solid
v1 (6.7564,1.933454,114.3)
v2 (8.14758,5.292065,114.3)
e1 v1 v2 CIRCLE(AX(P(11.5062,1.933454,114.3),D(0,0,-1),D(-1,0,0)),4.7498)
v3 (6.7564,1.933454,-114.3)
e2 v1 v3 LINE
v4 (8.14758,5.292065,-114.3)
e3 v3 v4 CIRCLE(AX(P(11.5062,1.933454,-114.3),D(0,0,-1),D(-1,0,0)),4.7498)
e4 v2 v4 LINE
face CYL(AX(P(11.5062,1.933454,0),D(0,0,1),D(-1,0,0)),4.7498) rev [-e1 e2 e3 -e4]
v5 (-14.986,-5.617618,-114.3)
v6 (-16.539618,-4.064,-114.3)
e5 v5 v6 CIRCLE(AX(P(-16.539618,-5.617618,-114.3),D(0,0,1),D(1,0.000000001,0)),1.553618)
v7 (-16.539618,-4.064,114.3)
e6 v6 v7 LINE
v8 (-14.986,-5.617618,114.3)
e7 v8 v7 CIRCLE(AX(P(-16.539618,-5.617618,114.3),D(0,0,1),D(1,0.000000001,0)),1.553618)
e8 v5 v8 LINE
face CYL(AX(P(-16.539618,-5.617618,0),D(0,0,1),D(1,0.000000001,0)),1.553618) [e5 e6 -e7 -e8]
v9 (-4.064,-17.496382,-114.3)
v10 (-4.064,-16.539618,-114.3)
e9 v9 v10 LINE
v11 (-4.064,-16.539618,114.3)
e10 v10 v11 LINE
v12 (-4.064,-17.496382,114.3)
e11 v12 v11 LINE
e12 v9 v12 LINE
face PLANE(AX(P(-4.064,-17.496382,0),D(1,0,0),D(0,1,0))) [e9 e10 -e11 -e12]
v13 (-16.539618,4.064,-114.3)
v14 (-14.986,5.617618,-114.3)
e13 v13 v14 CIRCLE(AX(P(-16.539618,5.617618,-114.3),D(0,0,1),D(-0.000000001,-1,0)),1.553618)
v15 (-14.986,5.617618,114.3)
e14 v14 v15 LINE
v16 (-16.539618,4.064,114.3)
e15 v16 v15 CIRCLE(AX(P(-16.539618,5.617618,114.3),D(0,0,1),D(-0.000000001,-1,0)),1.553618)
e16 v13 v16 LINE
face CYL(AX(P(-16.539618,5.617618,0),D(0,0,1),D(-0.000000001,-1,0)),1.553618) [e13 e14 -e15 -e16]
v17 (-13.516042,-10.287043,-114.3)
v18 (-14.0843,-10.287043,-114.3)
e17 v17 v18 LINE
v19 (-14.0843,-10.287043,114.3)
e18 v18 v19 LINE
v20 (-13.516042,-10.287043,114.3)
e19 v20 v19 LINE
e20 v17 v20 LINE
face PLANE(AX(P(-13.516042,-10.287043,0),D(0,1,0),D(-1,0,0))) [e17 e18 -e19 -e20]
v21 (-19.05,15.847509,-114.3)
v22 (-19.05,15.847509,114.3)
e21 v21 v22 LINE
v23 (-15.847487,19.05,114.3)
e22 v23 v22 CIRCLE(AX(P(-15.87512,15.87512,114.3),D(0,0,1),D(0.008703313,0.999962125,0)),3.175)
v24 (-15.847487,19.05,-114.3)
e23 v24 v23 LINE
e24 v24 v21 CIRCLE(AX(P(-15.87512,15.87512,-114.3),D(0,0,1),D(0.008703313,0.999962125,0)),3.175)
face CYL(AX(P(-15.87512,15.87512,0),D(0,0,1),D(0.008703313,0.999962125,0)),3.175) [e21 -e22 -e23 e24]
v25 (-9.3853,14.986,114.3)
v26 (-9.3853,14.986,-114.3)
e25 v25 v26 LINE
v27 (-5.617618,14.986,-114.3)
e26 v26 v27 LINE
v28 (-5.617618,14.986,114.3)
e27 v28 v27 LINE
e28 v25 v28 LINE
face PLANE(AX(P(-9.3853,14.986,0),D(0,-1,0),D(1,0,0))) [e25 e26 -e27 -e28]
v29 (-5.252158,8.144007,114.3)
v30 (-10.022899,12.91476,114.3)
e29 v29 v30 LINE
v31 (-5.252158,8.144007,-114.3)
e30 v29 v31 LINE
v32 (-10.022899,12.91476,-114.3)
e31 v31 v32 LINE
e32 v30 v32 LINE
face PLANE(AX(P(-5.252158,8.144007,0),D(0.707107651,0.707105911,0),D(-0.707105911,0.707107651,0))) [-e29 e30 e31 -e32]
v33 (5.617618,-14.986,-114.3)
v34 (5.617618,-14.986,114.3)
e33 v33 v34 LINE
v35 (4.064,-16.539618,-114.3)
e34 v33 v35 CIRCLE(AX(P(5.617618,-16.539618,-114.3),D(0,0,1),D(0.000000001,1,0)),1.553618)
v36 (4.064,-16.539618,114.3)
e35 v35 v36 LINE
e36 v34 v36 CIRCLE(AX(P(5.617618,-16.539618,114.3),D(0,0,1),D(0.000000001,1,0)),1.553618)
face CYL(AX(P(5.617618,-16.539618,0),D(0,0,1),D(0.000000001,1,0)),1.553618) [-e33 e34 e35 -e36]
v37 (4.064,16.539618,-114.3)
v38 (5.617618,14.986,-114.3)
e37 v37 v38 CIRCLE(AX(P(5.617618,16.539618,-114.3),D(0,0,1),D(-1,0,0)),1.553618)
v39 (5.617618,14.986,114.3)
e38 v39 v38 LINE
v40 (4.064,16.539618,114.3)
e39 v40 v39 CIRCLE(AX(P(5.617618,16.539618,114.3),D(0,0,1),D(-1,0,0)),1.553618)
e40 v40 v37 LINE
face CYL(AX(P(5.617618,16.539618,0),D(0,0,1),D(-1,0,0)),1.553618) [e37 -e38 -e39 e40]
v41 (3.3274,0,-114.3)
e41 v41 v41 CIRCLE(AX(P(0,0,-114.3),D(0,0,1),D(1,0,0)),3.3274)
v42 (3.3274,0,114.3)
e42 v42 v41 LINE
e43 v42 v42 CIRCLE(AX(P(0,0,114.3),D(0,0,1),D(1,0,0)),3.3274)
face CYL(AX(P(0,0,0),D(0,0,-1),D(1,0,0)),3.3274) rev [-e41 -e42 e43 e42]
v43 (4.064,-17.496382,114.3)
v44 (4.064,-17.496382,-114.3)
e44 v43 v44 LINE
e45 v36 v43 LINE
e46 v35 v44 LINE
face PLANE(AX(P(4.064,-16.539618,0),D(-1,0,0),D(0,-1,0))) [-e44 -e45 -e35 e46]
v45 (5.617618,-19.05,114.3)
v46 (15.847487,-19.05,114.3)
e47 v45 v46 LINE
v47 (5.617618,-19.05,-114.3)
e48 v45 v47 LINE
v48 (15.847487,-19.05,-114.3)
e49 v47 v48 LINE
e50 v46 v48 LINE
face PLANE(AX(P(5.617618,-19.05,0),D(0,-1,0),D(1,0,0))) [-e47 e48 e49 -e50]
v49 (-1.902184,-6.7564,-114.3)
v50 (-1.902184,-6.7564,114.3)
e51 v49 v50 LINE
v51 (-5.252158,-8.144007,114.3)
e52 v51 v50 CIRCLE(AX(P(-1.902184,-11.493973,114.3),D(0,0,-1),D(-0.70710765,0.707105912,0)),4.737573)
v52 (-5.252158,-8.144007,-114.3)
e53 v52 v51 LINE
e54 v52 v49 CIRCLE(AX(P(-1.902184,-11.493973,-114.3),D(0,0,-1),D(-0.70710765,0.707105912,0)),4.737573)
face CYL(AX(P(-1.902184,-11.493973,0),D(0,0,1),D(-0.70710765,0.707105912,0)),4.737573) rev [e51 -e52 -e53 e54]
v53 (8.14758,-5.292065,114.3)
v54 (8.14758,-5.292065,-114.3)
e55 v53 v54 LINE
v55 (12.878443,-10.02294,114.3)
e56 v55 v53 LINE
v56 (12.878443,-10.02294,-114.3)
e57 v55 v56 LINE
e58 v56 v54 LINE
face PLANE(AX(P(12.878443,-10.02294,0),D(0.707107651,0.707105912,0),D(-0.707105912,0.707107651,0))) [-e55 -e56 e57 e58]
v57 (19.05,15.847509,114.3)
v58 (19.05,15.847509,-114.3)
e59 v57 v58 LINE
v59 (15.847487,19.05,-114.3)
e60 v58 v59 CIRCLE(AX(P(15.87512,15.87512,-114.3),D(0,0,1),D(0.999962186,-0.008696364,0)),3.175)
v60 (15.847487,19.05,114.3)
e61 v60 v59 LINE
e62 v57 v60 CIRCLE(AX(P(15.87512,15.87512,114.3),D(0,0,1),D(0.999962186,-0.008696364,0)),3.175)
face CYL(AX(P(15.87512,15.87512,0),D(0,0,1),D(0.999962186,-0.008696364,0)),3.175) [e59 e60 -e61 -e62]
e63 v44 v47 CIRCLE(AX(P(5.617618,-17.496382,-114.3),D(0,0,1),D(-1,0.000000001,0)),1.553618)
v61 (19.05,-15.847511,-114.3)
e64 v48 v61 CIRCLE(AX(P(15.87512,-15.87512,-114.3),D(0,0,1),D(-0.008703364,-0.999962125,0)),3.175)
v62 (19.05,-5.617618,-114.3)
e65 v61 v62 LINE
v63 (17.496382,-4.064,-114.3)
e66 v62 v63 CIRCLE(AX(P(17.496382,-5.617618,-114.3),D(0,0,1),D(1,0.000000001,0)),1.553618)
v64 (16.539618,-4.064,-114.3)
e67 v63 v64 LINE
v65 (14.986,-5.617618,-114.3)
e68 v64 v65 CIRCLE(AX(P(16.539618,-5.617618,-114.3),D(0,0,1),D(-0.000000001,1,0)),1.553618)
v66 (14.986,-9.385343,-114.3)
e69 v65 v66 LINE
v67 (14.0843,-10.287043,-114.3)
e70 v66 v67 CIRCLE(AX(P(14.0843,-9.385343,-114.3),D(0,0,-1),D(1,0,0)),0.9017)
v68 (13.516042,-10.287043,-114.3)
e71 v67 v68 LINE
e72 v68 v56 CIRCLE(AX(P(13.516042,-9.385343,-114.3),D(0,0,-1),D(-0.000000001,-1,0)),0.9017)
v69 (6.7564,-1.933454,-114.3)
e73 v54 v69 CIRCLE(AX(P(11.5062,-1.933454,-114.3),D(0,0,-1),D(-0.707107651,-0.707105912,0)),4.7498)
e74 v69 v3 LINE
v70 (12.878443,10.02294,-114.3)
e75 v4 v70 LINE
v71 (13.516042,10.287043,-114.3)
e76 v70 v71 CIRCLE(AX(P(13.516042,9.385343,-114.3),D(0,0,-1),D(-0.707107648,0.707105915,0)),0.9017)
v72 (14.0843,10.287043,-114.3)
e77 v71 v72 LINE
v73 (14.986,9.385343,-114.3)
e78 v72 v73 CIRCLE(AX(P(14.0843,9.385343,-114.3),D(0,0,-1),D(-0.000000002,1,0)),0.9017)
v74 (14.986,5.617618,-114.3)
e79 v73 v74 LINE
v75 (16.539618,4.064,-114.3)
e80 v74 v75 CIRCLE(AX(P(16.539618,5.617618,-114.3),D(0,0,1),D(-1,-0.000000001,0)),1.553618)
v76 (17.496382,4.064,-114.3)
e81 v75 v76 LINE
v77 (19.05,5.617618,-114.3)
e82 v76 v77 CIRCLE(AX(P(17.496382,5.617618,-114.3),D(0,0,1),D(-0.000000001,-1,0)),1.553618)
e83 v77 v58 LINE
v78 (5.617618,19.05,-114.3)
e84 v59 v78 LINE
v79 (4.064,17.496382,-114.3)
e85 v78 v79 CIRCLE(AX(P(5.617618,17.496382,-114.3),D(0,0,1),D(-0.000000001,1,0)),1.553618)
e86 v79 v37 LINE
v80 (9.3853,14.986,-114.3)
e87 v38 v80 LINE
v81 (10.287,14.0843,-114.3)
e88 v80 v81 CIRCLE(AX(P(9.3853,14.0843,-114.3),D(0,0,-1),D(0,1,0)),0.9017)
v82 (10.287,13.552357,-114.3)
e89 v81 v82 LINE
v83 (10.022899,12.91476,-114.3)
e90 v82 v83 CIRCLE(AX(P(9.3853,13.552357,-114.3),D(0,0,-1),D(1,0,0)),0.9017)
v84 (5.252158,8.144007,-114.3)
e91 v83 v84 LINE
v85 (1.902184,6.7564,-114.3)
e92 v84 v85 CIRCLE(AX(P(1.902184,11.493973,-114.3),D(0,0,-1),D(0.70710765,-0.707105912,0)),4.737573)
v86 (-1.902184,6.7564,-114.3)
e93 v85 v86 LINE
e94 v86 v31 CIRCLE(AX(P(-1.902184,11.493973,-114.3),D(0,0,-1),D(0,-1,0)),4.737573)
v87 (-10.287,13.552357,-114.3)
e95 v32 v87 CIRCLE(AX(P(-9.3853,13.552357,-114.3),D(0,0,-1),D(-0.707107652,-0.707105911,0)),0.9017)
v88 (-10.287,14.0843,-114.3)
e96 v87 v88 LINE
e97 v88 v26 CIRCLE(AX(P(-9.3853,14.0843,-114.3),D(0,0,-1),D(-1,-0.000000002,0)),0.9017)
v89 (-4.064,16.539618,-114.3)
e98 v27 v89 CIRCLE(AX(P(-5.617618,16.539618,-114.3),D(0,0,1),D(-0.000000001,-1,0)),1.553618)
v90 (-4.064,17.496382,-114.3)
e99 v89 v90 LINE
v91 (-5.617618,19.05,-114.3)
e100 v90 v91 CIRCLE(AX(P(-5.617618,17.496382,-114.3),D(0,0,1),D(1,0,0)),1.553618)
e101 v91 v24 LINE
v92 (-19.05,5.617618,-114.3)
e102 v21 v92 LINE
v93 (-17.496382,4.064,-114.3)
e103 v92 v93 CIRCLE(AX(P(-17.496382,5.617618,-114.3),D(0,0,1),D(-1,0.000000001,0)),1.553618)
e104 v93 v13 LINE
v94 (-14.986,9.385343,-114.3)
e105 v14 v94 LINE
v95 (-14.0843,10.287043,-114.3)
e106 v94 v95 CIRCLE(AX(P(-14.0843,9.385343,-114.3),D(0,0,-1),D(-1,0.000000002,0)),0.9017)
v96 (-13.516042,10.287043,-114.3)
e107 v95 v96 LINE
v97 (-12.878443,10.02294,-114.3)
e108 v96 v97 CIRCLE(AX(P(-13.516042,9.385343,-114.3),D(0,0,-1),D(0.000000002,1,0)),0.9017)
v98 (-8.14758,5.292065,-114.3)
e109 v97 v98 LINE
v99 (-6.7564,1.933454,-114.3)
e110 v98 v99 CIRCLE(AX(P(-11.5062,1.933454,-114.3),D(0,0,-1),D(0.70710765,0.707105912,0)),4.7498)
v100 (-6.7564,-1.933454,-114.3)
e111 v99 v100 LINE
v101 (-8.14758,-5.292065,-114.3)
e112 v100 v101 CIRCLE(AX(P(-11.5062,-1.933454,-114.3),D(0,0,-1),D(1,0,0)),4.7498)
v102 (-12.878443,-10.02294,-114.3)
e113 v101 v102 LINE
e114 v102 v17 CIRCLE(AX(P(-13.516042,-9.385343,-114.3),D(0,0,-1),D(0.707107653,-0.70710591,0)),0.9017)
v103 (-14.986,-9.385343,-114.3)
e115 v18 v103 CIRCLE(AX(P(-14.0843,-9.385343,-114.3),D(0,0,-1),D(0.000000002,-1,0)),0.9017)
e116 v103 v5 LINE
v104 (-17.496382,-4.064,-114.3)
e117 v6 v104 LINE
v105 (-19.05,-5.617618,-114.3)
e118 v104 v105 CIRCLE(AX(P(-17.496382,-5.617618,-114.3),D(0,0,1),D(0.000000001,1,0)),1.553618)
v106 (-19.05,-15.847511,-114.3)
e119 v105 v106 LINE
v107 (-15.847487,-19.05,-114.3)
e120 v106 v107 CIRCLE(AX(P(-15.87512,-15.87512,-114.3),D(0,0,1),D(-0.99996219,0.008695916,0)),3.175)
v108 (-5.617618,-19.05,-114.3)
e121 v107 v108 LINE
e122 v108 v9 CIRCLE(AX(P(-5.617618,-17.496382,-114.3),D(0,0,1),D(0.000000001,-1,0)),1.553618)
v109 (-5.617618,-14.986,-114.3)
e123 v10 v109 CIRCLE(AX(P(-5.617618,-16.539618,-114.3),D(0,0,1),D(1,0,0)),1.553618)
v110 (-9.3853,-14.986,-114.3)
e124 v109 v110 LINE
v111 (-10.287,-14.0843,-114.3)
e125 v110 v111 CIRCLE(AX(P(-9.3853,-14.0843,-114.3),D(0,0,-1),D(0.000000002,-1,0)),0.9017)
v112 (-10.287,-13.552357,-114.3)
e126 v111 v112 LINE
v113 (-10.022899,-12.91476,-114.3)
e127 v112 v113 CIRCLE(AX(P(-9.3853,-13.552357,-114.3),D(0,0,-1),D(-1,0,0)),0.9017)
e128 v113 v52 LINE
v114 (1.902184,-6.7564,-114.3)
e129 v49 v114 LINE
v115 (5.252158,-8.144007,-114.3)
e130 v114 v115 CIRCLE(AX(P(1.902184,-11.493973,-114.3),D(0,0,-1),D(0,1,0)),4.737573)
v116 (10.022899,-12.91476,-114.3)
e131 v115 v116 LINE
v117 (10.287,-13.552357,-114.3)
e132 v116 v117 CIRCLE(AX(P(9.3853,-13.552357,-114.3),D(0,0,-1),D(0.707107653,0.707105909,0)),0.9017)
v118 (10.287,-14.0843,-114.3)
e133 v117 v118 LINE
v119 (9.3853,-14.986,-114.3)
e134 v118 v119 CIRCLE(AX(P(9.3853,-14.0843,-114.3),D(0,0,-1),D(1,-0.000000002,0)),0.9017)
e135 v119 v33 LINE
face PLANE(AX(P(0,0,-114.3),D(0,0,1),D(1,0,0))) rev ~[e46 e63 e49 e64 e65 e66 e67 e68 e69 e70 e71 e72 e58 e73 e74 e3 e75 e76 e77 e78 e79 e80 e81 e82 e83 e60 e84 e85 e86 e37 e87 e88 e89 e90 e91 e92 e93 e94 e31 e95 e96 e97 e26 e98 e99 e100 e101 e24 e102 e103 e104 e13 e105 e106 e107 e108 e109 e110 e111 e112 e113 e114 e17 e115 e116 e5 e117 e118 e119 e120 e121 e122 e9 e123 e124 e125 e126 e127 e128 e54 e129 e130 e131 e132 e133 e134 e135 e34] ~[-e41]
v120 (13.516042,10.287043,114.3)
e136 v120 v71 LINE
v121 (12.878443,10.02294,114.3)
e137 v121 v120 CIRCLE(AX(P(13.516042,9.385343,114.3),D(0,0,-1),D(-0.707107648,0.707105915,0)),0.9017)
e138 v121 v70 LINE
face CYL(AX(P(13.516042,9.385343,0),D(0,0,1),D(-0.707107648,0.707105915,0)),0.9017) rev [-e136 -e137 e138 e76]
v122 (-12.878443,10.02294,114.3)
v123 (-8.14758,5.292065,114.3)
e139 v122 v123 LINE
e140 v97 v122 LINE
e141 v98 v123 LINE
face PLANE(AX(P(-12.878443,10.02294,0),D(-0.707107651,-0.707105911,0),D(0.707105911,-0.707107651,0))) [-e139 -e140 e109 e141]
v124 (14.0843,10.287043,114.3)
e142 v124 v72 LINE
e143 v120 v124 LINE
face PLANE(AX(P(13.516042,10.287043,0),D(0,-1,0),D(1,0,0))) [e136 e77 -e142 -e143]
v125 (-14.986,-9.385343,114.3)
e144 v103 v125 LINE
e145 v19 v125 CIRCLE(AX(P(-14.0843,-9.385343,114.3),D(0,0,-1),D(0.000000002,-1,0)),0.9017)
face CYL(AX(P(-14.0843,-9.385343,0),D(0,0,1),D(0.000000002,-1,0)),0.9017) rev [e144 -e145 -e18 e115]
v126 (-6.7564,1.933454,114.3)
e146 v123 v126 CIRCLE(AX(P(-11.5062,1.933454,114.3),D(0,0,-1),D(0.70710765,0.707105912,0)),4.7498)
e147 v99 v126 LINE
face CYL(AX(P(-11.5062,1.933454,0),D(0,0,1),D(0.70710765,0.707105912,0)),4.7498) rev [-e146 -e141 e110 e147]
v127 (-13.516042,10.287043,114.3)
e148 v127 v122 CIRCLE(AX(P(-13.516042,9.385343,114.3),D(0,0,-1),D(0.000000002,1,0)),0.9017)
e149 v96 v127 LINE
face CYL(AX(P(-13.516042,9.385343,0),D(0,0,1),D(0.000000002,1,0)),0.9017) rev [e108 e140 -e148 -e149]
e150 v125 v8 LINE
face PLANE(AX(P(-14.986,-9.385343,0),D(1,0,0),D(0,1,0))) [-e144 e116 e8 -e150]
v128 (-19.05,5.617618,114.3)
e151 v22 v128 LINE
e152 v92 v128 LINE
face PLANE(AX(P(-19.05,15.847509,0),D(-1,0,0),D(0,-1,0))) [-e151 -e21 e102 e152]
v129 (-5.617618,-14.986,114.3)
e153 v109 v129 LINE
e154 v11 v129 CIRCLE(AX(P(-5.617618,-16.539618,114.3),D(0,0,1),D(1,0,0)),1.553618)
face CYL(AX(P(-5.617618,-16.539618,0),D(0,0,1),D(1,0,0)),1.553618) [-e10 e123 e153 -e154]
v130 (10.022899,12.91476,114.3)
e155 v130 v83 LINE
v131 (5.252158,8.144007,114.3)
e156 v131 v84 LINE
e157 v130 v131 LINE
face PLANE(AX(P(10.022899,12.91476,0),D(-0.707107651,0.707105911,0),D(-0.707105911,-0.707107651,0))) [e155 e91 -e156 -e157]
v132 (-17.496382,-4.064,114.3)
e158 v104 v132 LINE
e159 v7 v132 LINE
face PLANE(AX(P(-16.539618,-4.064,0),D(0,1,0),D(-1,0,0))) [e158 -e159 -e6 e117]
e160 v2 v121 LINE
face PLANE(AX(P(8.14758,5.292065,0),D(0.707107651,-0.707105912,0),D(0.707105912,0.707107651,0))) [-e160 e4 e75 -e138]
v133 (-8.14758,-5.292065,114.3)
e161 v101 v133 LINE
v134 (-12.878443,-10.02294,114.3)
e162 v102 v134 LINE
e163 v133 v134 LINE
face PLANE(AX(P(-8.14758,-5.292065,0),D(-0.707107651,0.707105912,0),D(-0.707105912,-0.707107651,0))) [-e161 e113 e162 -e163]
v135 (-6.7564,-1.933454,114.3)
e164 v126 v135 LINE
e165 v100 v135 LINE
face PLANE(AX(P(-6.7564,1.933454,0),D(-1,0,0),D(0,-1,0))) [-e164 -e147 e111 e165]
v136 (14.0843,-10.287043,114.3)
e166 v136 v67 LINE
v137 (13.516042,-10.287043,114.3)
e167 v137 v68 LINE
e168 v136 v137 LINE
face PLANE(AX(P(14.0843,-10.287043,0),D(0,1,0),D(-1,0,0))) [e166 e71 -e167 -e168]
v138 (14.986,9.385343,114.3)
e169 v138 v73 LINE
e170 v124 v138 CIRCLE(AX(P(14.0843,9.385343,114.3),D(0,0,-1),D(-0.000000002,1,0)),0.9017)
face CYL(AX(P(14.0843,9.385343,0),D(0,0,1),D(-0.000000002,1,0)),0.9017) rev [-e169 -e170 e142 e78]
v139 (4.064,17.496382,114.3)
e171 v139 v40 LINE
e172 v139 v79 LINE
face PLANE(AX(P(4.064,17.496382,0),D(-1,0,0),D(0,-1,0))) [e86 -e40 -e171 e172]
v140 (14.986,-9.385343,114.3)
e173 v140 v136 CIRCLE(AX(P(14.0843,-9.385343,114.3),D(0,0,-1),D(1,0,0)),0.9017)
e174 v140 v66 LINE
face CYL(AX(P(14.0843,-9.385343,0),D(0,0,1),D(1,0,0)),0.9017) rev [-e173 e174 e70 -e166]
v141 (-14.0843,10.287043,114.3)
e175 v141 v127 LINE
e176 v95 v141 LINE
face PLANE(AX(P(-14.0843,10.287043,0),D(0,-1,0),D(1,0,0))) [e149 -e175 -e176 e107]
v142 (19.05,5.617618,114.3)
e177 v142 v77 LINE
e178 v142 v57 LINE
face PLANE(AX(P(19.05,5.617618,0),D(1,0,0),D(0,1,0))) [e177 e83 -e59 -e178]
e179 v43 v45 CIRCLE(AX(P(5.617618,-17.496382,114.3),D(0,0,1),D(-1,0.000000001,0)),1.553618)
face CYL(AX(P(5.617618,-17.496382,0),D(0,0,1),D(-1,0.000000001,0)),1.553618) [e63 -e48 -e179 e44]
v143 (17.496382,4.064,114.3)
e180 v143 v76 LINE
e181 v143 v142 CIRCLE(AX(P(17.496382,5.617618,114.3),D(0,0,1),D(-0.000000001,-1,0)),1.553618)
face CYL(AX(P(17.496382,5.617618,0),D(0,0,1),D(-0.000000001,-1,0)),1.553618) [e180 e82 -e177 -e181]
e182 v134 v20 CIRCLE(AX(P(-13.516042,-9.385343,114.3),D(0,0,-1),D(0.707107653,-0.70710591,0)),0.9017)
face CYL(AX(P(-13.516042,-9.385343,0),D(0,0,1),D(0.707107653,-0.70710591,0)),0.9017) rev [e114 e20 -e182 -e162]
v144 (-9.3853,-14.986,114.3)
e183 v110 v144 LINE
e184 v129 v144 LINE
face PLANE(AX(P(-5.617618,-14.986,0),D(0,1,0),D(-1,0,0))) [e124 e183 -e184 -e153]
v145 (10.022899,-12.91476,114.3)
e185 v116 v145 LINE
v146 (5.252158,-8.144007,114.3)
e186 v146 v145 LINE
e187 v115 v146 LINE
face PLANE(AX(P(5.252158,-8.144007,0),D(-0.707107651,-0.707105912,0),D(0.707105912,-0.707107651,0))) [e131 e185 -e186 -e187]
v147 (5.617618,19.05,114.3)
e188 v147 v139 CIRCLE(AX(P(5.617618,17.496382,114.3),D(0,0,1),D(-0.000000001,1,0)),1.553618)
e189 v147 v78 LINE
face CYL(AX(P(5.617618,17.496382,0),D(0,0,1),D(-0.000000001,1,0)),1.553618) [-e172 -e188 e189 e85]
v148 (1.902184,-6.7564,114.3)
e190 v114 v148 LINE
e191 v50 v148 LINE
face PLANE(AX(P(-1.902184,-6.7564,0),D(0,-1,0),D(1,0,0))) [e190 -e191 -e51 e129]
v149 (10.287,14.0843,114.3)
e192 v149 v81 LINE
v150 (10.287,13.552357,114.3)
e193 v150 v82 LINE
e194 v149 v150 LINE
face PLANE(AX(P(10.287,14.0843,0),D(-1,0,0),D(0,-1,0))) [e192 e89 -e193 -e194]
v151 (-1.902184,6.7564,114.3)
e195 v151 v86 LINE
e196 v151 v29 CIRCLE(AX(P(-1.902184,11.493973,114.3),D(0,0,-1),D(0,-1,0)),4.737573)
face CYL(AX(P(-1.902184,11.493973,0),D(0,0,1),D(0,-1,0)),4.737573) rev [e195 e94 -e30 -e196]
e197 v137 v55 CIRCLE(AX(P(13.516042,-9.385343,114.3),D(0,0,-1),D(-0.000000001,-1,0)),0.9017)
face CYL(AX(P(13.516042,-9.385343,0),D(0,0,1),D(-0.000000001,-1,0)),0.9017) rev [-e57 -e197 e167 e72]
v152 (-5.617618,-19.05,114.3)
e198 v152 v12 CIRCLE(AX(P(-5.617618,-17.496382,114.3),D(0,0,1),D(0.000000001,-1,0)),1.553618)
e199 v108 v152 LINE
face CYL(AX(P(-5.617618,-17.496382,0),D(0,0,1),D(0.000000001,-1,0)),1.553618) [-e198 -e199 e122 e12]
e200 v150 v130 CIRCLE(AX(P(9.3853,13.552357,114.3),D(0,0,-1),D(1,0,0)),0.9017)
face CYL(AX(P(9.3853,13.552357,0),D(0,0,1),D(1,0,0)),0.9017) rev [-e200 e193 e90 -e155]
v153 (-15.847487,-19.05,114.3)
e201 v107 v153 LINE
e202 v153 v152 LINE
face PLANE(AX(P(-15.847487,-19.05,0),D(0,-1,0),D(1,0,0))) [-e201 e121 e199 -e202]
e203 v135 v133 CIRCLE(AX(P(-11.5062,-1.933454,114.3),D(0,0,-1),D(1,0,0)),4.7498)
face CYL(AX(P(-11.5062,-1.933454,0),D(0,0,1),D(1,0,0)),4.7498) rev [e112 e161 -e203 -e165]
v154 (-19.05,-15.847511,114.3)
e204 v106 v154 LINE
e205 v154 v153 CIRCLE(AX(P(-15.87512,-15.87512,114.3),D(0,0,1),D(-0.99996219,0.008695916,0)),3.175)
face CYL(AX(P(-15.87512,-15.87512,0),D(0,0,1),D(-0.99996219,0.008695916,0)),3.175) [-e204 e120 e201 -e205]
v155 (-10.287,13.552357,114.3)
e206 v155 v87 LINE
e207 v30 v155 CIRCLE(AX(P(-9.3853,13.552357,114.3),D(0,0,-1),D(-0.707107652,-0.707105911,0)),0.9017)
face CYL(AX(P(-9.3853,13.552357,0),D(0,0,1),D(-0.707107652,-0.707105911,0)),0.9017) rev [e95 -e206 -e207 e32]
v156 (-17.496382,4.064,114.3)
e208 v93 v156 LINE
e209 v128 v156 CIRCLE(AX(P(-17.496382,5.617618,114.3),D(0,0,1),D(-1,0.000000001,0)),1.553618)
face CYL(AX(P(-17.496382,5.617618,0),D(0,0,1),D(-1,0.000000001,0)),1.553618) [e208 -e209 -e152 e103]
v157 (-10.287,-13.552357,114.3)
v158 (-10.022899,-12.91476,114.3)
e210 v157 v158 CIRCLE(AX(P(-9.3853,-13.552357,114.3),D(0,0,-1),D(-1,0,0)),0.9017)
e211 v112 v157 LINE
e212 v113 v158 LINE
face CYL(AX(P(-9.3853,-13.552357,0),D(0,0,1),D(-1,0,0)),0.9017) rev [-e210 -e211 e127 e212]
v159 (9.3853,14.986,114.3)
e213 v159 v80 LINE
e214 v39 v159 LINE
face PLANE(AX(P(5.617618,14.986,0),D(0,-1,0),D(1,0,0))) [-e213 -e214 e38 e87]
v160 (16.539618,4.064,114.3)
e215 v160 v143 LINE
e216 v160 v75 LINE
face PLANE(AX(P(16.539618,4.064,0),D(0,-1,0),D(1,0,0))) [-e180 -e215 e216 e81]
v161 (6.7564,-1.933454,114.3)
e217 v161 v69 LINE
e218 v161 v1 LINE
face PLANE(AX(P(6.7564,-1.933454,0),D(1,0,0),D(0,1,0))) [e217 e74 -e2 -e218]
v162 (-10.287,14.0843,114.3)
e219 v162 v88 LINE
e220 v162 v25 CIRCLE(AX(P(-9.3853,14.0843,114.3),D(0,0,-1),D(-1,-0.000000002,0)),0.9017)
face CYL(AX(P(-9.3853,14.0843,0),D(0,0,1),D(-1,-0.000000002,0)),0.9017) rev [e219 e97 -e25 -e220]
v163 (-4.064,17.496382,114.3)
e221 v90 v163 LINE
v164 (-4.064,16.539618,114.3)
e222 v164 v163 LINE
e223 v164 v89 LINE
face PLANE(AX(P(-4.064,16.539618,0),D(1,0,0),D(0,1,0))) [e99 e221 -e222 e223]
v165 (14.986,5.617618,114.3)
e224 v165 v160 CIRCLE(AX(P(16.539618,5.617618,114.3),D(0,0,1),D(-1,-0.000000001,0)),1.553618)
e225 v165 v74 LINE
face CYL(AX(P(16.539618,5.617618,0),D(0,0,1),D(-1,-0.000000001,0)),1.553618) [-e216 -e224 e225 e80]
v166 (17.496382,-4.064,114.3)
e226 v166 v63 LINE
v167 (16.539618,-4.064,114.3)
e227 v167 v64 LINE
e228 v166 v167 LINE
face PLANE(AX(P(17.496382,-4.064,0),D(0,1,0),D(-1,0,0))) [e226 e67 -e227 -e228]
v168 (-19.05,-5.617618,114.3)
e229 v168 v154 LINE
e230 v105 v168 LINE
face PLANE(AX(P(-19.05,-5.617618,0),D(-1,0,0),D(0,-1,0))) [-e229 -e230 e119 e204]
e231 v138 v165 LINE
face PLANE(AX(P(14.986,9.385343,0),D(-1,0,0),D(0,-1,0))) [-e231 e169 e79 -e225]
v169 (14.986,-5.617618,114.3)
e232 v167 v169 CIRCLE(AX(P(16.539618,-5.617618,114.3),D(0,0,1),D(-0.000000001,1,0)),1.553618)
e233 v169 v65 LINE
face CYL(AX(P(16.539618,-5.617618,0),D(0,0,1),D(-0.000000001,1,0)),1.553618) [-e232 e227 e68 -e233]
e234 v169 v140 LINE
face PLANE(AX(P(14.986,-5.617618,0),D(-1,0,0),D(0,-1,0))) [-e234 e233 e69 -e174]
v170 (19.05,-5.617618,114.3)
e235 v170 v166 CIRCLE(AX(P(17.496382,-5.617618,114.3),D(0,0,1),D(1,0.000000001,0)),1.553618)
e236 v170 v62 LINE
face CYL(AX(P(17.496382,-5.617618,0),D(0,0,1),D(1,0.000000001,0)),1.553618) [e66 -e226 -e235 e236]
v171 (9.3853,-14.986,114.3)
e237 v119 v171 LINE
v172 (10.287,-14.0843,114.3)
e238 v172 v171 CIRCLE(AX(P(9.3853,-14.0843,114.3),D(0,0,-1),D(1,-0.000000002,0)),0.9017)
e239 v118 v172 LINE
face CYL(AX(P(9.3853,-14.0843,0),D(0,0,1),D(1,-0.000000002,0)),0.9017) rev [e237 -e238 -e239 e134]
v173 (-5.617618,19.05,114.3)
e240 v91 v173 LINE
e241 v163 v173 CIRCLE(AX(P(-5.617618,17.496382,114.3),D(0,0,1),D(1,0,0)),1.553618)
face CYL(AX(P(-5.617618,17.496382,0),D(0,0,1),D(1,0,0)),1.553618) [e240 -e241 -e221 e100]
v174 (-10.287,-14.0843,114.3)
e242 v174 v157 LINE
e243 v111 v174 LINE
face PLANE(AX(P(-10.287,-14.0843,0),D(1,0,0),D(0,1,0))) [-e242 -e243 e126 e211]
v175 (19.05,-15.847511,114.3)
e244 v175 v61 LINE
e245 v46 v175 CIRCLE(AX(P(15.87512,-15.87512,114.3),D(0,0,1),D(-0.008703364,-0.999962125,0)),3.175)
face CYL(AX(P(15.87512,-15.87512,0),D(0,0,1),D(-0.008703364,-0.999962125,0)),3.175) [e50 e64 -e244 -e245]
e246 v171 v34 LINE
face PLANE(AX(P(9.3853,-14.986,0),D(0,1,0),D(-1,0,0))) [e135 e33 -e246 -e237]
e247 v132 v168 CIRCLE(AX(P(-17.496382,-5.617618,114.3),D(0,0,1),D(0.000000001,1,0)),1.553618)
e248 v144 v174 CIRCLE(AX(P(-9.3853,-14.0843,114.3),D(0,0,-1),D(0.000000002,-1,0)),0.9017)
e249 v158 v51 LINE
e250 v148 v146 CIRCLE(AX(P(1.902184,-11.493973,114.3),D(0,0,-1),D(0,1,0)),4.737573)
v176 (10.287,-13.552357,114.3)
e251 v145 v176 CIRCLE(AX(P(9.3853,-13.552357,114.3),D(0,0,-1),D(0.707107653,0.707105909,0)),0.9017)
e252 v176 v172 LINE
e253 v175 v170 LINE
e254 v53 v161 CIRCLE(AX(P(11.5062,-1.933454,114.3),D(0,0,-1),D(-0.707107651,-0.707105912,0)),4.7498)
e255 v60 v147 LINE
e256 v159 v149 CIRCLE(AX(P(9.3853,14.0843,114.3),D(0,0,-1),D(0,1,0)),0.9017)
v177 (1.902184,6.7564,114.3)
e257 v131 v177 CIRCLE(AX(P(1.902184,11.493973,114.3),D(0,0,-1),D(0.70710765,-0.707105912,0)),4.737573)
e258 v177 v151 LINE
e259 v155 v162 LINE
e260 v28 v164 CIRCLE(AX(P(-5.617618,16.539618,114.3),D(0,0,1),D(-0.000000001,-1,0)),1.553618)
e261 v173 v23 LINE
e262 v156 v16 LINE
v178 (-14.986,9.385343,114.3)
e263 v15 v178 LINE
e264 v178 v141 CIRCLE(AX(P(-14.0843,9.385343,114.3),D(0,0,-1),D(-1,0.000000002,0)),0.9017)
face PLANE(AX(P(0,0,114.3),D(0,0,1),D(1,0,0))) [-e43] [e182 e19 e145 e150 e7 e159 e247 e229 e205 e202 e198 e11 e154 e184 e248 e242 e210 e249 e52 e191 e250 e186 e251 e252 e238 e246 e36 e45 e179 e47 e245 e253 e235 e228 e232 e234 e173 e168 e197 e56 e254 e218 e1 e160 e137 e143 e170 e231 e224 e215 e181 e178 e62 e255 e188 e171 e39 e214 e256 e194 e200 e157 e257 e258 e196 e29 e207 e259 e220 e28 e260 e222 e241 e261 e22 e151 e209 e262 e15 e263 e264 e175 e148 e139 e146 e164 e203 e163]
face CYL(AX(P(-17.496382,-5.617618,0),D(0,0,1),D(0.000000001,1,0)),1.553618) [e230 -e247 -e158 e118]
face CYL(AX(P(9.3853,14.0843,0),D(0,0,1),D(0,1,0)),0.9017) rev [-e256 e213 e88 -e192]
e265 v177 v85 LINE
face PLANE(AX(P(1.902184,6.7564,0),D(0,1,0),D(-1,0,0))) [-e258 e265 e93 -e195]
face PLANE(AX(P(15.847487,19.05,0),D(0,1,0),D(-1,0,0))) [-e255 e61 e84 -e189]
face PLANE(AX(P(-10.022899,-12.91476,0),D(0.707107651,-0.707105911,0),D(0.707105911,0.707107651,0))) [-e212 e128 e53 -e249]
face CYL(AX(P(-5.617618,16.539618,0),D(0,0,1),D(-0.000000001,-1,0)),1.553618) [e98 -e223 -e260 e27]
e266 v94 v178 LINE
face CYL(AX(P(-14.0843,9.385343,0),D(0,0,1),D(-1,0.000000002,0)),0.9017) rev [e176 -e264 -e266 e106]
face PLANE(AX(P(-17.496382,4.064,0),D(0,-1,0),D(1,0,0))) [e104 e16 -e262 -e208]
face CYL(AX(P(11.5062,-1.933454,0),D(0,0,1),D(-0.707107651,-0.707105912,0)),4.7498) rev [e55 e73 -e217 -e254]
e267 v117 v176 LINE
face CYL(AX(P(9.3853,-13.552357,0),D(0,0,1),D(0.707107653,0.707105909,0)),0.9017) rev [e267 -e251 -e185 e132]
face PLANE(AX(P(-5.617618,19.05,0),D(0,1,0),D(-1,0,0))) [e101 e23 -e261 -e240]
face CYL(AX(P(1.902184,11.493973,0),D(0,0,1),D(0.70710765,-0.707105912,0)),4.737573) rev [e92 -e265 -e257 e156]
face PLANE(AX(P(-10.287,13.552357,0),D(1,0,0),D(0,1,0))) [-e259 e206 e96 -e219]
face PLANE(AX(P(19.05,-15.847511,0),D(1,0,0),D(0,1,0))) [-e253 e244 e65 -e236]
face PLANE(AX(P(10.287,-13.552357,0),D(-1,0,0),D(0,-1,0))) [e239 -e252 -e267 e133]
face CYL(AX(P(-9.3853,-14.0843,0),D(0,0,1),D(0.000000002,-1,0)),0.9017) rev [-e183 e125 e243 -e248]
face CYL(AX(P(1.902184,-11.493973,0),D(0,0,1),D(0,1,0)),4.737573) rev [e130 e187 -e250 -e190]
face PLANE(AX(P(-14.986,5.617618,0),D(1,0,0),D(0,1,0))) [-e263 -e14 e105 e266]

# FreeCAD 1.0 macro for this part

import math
import FreeCAD as App
import Part
import Sketcher
from FreeCAD import Vector
Q = App.Units.Quantity

doc = App.newDocument("Part")
body = doc.addObject("PartDesign::Body", "Body")

# Sketch on XY plane
sketch1 = body.newObject("Sketcher::SketchObject", "Sketch")
sketch1.AttachmentSupport = (doc.getObject("XY_Plane"), [""])
sketch1.MapMode = "FlatFace"
sketch1.addGeometry([
    Part.LineSegment(Vector(-4.064, 16.539618, 0), Vector(-4.064, 17.496382, 0)),  # 0
    Part.ArcOfCircle(Part.Circle(Vector(-5.617618, 17.496382, 0), Vector(0, 0, 1), 1.553618), math.radians(0), math.radians(90)),  # 1
    Part.LineSegment(Vector(-5.617618, 19.05, 0), Vector(-15.847487, 19.05, 0)),  # 2
    Part.ArcOfCircle(Part.Circle(Vector(-15.87512, 15.87512, 0), Vector(0, 0, 1), 3.175), math.radians(89.501331), math.radians(180.498271)),  # 3
    Part.LineSegment(Vector(-19.05, 15.847509, 0), Vector(-19.05, 5.617618, 0)),  # 4
    Part.ArcOfCircle(Part.Circle(Vector(-17.496382, 5.617618, 0), Vector(0, 0, 1), 1.553618), math.radians(180), math.radians(270)),  # 5
    Part.LineSegment(Vector(-17.496382, 4.064, 0), Vector(-16.539618, 4.064, 0)),  # 6
    Part.ArcOfCircle(Part.Circle(Vector(-16.539618, 5.617618, 0), Vector(0, 0, 1), 1.553618), math.radians(-90), math.radians(0)),  # 7
    Part.LineSegment(Vector(-14.986, 5.617618, 0), Vector(-14.986, 9.385343, 0)),  # 8
    Part.ArcOfCircle(Part.Circle(Vector(-14.0843, 9.385343, 0), Vector(0, 0, 1), 0.9017), math.radians(90), math.radians(180)),  # 9
    Part.LineSegment(Vector(-14.0843, 10.287043, 0), Vector(-13.516042, 10.287043, 0)),  # 10
    Part.ArcOfCircle(Part.Circle(Vector(-13.516042, 9.385343, 0), Vector(0, 0, 1), 0.9017), math.radians(44.99993), math.radians(90)),  # 11
    Part.LineSegment(Vector(-12.878443, 10.02294, 0), Vector(-8.14758, 5.292065, 0)),  # 12
    Part.ArcOfCircle(Part.Circle(Vector(-11.5062, 1.933454, 0), Vector(0, 0, 1), 4.7498), math.radians(0), math.radians(44.99993)),  # 13
    Part.LineSegment(Vector(-6.7564, 1.933454, 0), Vector(-6.7564, -1.933454, 0)),  # 14
    Part.ArcOfCircle(Part.Circle(Vector(-11.5062, -1.933454, 0), Vector(0, 0, 1), 4.7498), math.radians(-44.99993), math.radians(0)),  # 15
    Part.LineSegment(Vector(-8.14758, -5.292065, 0), Vector(-12.878443, -10.02294, 0)),  # 16
    Part.ArcOfCircle(Part.Circle(Vector(-13.516042, -9.385343, 0), Vector(0, 0, 1), 0.9017), math.radians(-90), math.radians(-44.999929)),  # 17
    Part.LineSegment(Vector(-13.516042, -10.287043, 0), Vector(-14.0843, -10.287043, 0)),  # 18
    Part.ArcOfCircle(Part.Circle(Vector(-14.0843, -9.385343, 0), Vector(0, 0, 1), 0.9017), math.radians(180), math.radians(270)),  # 19
    Part.LineSegment(Vector(-14.986, -9.385343, 0), Vector(-14.986, -5.617618, 0)),  # 20
    Part.ArcOfCircle(Part.Circle(Vector(-16.539618, -5.617618, 0), Vector(0, 0, 1), 1.553618), math.radians(0), math.radians(90)),  # 21
    Part.LineSegment(Vector(-16.539618, -4.064, 0), Vector(-17.496382, -4.064, 0)),  # 22
    Part.ArcOfCircle(Part.Circle(Vector(-17.496382, -5.617618, 0), Vector(0, 0, 1), 1.553618), math.radians(90), math.radians(180)),  # 23
    Part.LineSegment(Vector(-19.05, -5.617618, 0), Vector(-19.05, -15.847511, 0)),  # 24
    Part.ArcOfCircle(Part.Circle(Vector(-15.87512, -15.87512, 0), Vector(0, 0, 1), 3.175), math.radians(179.501754), math.radians(270.498672)),  # 25
    Part.LineSegment(Vector(-15.847487, -19.05, 0), Vector(-5.617618, -19.05, 0)),  # 26
    Part.ArcOfCircle(Part.Circle(Vector(-5.617618, -17.496382, 0), Vector(0, 0, 1), 1.553618), math.radians(-90), math.radians(0)),  # 27
    Part.LineSegment(Vector(-4.064, -17.496382, 0), Vector(-4.064, -16.539618, 0)),  # 28
    Part.ArcOfCircle(Part.Circle(Vector(-5.617618, -16.539618, 0), Vector(0, 0, 1), 1.553618), math.radians(0), math.radians(90)),  # 29
    Part.LineSegment(Vector(-5.617618, -14.986, 0), Vector(-9.3853, -14.986, 0)),  # 30
    Part.ArcOfCircle(Part.Circle(Vector(-9.3853, -14.0843, 0), Vector(0, 0, 1), 0.9017), math.radians(180), math.radians(270)),  # 31
    Part.LineSegment(Vector(-10.287, -14.0843, 0), Vector(-10.287, -13.552357, 0)),  # 32
    Part.ArcOfCircle(Part.Circle(Vector(-9.3853, -13.552357, 0), Vector(0, 0, 1), 0.9017), math.radians(135.00007), math.radians(180)),  # 33
    Part.LineSegment(Vector(-10.022899, -12.91476, 0), Vector(-5.252158, -8.144007, 0)),  # 34
    Part.ArcOfCircle(Part.Circle(Vector(-1.902184, -11.493973, 0), Vector(0, 0, 1), 4.737573), math.radians(90), math.radians(135.00007)),  # 35
    Part.LineSegment(Vector(-1.902184, -6.7564, 0), Vector(1.902184, -6.7564, 0)),  # 36
    Part.ArcOfCircle(Part.Circle(Vector(1.902184, -11.493973, 0), Vector(0, 0, 1), 4.737573), math.radians(44.99993), math.radians(90)),  # 37
    Part.LineSegment(Vector(5.252158, -8.144007, 0), Vector(10.022899, -12.91476, 0)),  # 38
    Part.ArcOfCircle(Part.Circle(Vector(9.3853, -13.552357, 0), Vector(0, 0, 1), 0.9017), math.radians(0), math.radians(44.999929)),  # 39
    Part.LineSegment(Vector(10.287, -13.552357, 0), Vector(10.287, -14.0843, 0)),  # 40
    Part.ArcOfCircle(Part.Circle(Vector(9.3853, -14.0843, 0), Vector(0, 0, 1), 0.9017), math.radians(-90), math.radians(0)),  # 41
    Part.LineSegment(Vector(9.3853, -14.986, 0), Vector(5.617618, -14.986, 0)),  # 42
    Part.ArcOfCircle(Part.Circle(Vector(5.617618, -16.539618, 0), Vector(0, 0, 1), 1.553618), math.radians(90), math.radians(180)),  # 43
    Part.LineSegment(Vector(4.064, -16.539618, 0), Vector(4.064, -17.496382, 0)),  # 44
    Part.ArcOfCircle(Part.Circle(Vector(5.617618, -17.496382, 0), Vector(0, 0, 1), 1.553618), math.radians(180), math.radians(270)),  # 45
    Part.LineSegment(Vector(5.617618, -19.05, 0), Vector(15.847487, -19.05, 0)),  # 46
    Part.ArcOfCircle(Part.Circle(Vector(15.87512, -15.87512, 0), Vector(0, 0, 1), 3.175), math.radians(-90.498672), math.radians(0.498246)),  # 47
    Part.LineSegment(Vector(19.05, -15.847511, 0), Vector(19.05, -5.617618, 0)),  # 48
    Part.ArcOfCircle(Part.Circle(Vector(17.496382, -5.617618, 0), Vector(0, 0, 1), 1.553618), math.radians(0), math.radians(90)),  # 49
    Part.LineSegment(Vector(17.496382, -4.064, 0), Vector(16.539618, -4.064, 0)),  # 50
    Part.ArcOfCircle(Part.Circle(Vector(16.539618, -5.617618, 0), Vector(0, 0, 1), 1.553618), math.radians(90), math.radians(180)),  # 51
    Part.LineSegment(Vector(14.986, -5.617618, 0), Vector(14.986, -9.385343, 0)),  # 52
    Part.ArcOfCircle(Part.Circle(Vector(14.0843, -9.385343, 0), Vector(0, 0, 1), 0.9017), math.radians(-90), math.radians(0)),  # 53
    Part.LineSegment(Vector(14.0843, -10.287043, 0), Vector(13.516042, -10.287043, 0)),  # 54
    Part.ArcOfCircle(Part.Circle(Vector(13.516042, -9.385343, 0), Vector(0, 0, 1), 0.9017), math.radians(-135.000071), math.radians(-90)),  # 55
    Part.LineSegment(Vector(12.878443, -10.02294, 0), Vector(8.14758, -5.292065, 0)),  # 56
    Part.ArcOfCircle(Part.Circle(Vector(11.5062, -1.933454, 0), Vector(0, 0, 1), 4.7498), math.radians(180), math.radians(224.99993)),  # 57
    Part.LineSegment(Vector(6.7564, -1.933454, 0), Vector(6.7564, 1.933454, 0)),  # 58
    Part.ArcOfCircle(Part.Circle(Vector(11.5062, 1.933454, 0), Vector(0, 0, 1), 4.7498), math.radians(135.00007), math.radians(180)),  # 59
    Part.LineSegment(Vector(8.14758, 5.292065, 0), Vector(12.878443, 10.02294, 0)),  # 60
    Part.ArcOfCircle(Part.Circle(Vector(13.516042, 9.385343, 0), Vector(0, 0, 1), 0.9017), math.radians(90), math.radians(135.00007)),  # 61
    Part.LineSegment(Vector(13.516042, 10.287043, 0), Vector(14.0843, 10.287043, 0)),  # 62
    Part.ArcOfCircle(Part.Circle(Vector(14.0843, 9.385343, 0), Vector(0, 0, 1), 0.9017), math.radians(0), math.radians(90)),  # 63
    Part.LineSegment(Vector(14.986, 9.385343, 0), Vector(14.986, 5.617618, 0)),  # 64
    Part.ArcOfCircle(Part.Circle(Vector(16.539618, 5.617618, 0), Vector(0, 0, 1), 1.553618), math.radians(-180), math.radians(-90)),  # 65
    Part.LineSegment(Vector(16.539618, 4.064, 0), Vector(17.496382, 4.064, 0)),  # 66
    Part.ArcOfCircle(Part.Circle(Vector(17.496382, 5.617618, 0), Vector(0, 0, 1), 1.553618), math.radians(-90), math.radians(0)),  # 67
    Part.LineSegment(Vector(19.05, 5.617618, 0), Vector(19.05, 15.847509, 0)),  # 68
    Part.ArcOfCircle(Part.Circle(Vector(15.87512, 15.87512, 0), Vector(0, 0, 1), 3.175), math.radians(-0.498271), math.radians(90.498669)),  # 69
    Part.LineSegment(Vector(15.847487, 19.05, 0), Vector(5.617618, 19.05, 0)),  # 70
    Part.ArcOfCircle(Part.Circle(Vector(5.617618, 17.496382, 0), Vector(0, 0, 1), 1.553618), math.radians(90), math.radians(180)),  # 71
    Part.LineSegment(Vector(4.064, 17.496382, 0), Vector(4.064, 16.539618, 0)),  # 72
    Part.ArcOfCircle(Part.Circle(Vector(5.617618, 16.539618, 0), Vector(0, 0, 1), 1.553618), math.radians(180), math.radians(270)),  # 73
    Part.LineSegment(Vector(5.617618, 14.986, 0), Vector(9.3853, 14.986, 0)),  # 74
    Part.ArcOfCircle(Part.Circle(Vector(9.3853, 14.0843, 0), Vector(0, 0, 1), 0.9017), math.radians(0), math.radians(90)),  # 75
    Part.LineSegment(Vector(10.287, 14.0843, 0), Vector(10.287, 13.552357, 0)),  # 76
    Part.ArcOfCircle(Part.Circle(Vector(9.3853, 13.552357, 0), Vector(0, 0, 1), 0.9017), math.radians(-44.99993), math.radians(0)),  # 77
    Part.LineSegment(Vector(10.022899, 12.91476, 0), Vector(5.252158, 8.144007, 0)),  # 78
    Part.ArcOfCircle(Part.Circle(Vector(1.902184, 11.493973, 0), Vector(0, 0, 1), 4.737573), math.radians(-90), math.radians(-44.99993)),  # 79
    Part.LineSegment(Vector(1.902184, 6.7564, 0), Vector(-1.902184, 6.7564, 0)),  # 80
    Part.ArcOfCircle(Part.Circle(Vector(-1.902184, 11.493973, 0), Vector(0, 0, 1), 4.737573), math.radians(-135.00007), math.radians(-90)),  # 81
    Part.LineSegment(Vector(-5.252158, 8.144007, 0), Vector(-10.022899, 12.91476, 0)),  # 82
    Part.ArcOfCircle(Part.Circle(Vector(-9.3853, 13.552357, 0), Vector(0, 0, 1), 0.9017), math.radians(-180), math.radians(-135.000071)),  # 83
    Part.LineSegment(Vector(-10.287, 13.552357, 0), Vector(-10.287, 14.0843, 0)),  # 84
    Part.ArcOfCircle(Part.Circle(Vector(-9.3853, 14.0843, 0), Vector(0, 0, 1), 0.9017), math.radians(90), math.radians(180)),  # 85
    Part.LineSegment(Vector(-9.3853, 14.986, 0), Vector(-5.617618, 14.986, 0)),  # 86
    Part.ArcOfCircle(Part.Circle(Vector(-5.617618, 16.539618, 0), Vector(0, 0, 1), 1.553618), math.radians(-90), math.radians(0)),  # 87
    Part.Circle(Vector(0, 0, 0), Vector(0, 0, 1), 3.3274),  # 88
], False)
sketch1.addConstraint([
    Sketcher.Constraint("Tangent", 0, 2, 1, 1),
    Sketcher.Constraint("Tangent", 1, 2, 2, 1),
    Sketcher.Constraint("Coincident", 2, 2, 3, 1),
    Sketcher.Constraint("Coincident", 3, 2, 4, 1),
    Sketcher.Constraint("Tangent", 4, 2, 5, 1),
    Sketcher.Constraint("Tangent", 5, 2, 6, 1),
    Sketcher.Constraint("Tangent", 6, 2, 7, 1),
    Sketcher.Constraint("Tangent", 7, 2, 8, 1),
    Sketcher.Constraint("Tangent", 8, 2, 9, 2),
    Sketcher.Constraint("Tangent", 9, 1, 10, 1),
    Sketcher.Constraint("Tangent", 10, 2, 11, 2),
    Sketcher.Constraint("Tangent", 11, 1, 12, 1),
    Sketcher.Constraint("Tangent", 12, 2, 13, 2),
    Sketcher.Constraint("Tangent", 13, 1, 14, 1),
    Sketcher.Constraint("Tangent", 14, 2, 15, 2),
    Sketcher.Constraint("Tangent", 15, 1, 16, 1),
    Sketcher.Constraint("Tangent", 16, 2, 17, 2),
    Sketcher.Constraint("Tangent", 17, 1, 18, 1),
    Sketcher.Constraint("Tangent", 18, 2, 19, 2),
    Sketcher.Constraint("Tangent", 19, 1, 20, 1),
    Sketcher.Constraint("Tangent", 20, 2, 21, 1),
    Sketcher.Constraint("Tangent", 21, 2, 22, 1),
    Sketcher.Constraint("Tangent", 22, 2, 23, 1),
    Sketcher.Constraint("Tangent", 23, 2, 24, 1),
    Sketcher.Constraint("Coincident", 24, 2, 25, 1),
    Sketcher.Constraint("Coincident", 25, 2, 26, 1),
    Sketcher.Constraint("Tangent", 26, 2, 27, 1),
    Sketcher.Constraint("Tangent", 27, 2, 28, 1),
    Sketcher.Constraint("Tangent", 28, 2, 29, 1),
    Sketcher.Constraint("Tangent", 29, 2, 30, 1),
    Sketcher.Constraint("Tangent", 30, 2, 31, 2),
    Sketcher.Constraint("Tangent", 31, 1, 32, 1),
    Sketcher.Constraint("Tangent", 32, 2, 33, 2),
    Sketcher.Constraint("Tangent", 33, 1, 34, 1),
    Sketcher.Constraint("Tangent", 34, 2, 35, 2),
    Sketcher.Constraint("Tangent", 35, 1, 36, 1),
    Sketcher.Constraint("Tangent", 36, 2, 37, 2),
    Sketcher.Constraint("Tangent", 37, 1, 38, 1),
    Sketcher.Constraint("Tangent", 38, 2, 39, 2),
    Sketcher.Constraint("Tangent", 39, 1, 40, 1),
    Sketcher.Constraint("Tangent", 40, 2, 41, 2),
    Sketcher.Constraint("Tangent", 41, 1, 42, 1),
    Sketcher.Constraint("Tangent", 42, 2, 43, 1),
    Sketcher.Constraint("Tangent", 43, 2, 44, 1),
    Sketcher.Constraint("Tangent", 44, 2, 45, 1),
    Sketcher.Constraint("Tangent", 45, 2, 46, 1),
    Sketcher.Constraint("Coincident", 46, 2, 47, 1),
    Sketcher.Constraint("Coincident", 47, 2, 48, 1),
    Sketcher.Constraint("Tangent", 48, 2, 49, 1),
    Sketcher.Constraint("Tangent", 49, 2, 50, 1),
    Sketcher.Constraint("Tangent", 50, 2, 51, 1),
    Sketcher.Constraint("Tangent", 51, 2, 52, 1),
    Sketcher.Constraint("Tangent", 52, 2, 53, 2),
    Sketcher.Constraint("Tangent", 53, 1, 54, 1),
    Sketcher.Constraint("Tangent", 54, 2, 55, 2),
    Sketcher.Constraint("Tangent", 55, 1, 56, 1),
    Sketcher.Constraint("Tangent", 56, 2, 57, 2),
    Sketcher.Constraint("Tangent", 57, 1, 58, 1),
    Sketcher.Constraint("Tangent", 58, 2, 59, 2),
    Sketcher.Constraint("Tangent", 59, 1, 60, 1),
    Sketcher.Constraint("Tangent", 60, 2, 61, 2),
    Sketcher.Constraint("Tangent", 61, 1, 62, 1),
    Sketcher.Constraint("Tangent", 62, 2, 63, 2),
    Sketcher.Constraint("Tangent", 63, 1, 64, 1),
    Sketcher.Constraint("Tangent", 64, 2, 65, 1),
    Sketcher.Constraint("Tangent", 65, 2, 66, 1),
    Sketcher.Constraint("Tangent", 66, 2, 67, 1),
    Sketcher.Constraint("Tangent", 67, 2, 68, 1),
    Sketcher.Constraint("Coincident", 68, 2, 69, 1),
    Sketcher.Constraint("Coincident", 69, 2, 70, 1),
    Sketcher.Constraint("Tangent", 70, 2, 71, 1),
    Sketcher.Constraint("Tangent", 71, 2, 72, 1),
    Sketcher.Constraint("Tangent", 72, 2, 73, 1),
    Sketcher.Constraint("Tangent", 73, 2, 74, 1),
    Sketcher.Constraint("Tangent", 74, 2, 75, 2),
    Sketcher.Constraint("Tangent", 75, 1, 76, 1),
    Sketcher.Constraint("Tangent", 76, 2, 77, 2),
    Sketcher.Constraint("Tangent", 77, 1, 78, 1),
    Sketcher.Constraint("Tangent", 78, 2, 79, 2),
    Sketcher.Constraint("Tangent", 79, 1, 80, 1),
    Sketcher.Constraint("Tangent", 80, 2, 81, 2),
    Sketcher.Constraint("Tangent", 81, 1, 82, 1),
    Sketcher.Constraint("Tangent", 82, 2, 83, 2),
    Sketcher.Constraint("Tangent", 83, 1, 84, 1),
    Sketcher.Constraint("Tangent", 84, 2, 85, 2),
    Sketcher.Constraint("Tangent", 85, 1, 86, 1),
    Sketcher.Constraint("Tangent", 86, 2, 87, 1),
    Sketcher.Constraint("Tangent", 87, 2, 0, 1),
    Sketcher.Constraint("Vertical", 0),
    Sketcher.Constraint("Horizontal", 2),
    Sketcher.Constraint("Vertical", 4),
    Sketcher.Constraint("Horizontal", 6),
    Sketcher.Constraint("Vertical", 8),
    Sketcher.Constraint("Horizontal", 10),
    Sketcher.Constraint("Vertical", 14),
    Sketcher.Constraint("Horizontal", 18),
    Sketcher.Constraint("Vertical", 20),
    Sketcher.Constraint("Horizontal", 22),
    Sketcher.Constraint("Vertical", 24),
    Sketcher.Constraint("Horizontal", 26),
    Sketcher.Constraint("Vertical", 28),
    Sketcher.Constraint("Horizontal", 30),
    Sketcher.Constraint("Vertical", 32),
    Sketcher.Constraint("Horizontal", 36),
    Sketcher.Constraint("Vertical", 40),
    Sketcher.Constraint("Horizontal", 42),
    Sketcher.Constraint("Vertical", 44),
    Sketcher.Constraint("Horizontal", 46),
    Sketcher.Constraint("Vertical", 48),
    Sketcher.Constraint("Horizontal", 50),
    Sketcher.Constraint("Vertical", 52),
    Sketcher.Constraint("Horizontal", 54),
    Sketcher.Constraint("Vertical", 58),
    Sketcher.Constraint("Horizontal", 62),
    Sketcher.Constraint("Vertical", 64),
    Sketcher.Constraint("Horizontal", 66),
    Sketcher.Constraint("Vertical", 68),
    Sketcher.Constraint("Horizontal", 70),
    Sketcher.Constraint("Vertical", 72),
    Sketcher.Constraint("Horizontal", 74),
    Sketcher.Constraint("Vertical", 76),
    Sketcher.Constraint("Horizontal", 80),
    Sketcher.Constraint("Vertical", 84),
    Sketcher.Constraint("Horizontal", 86),
    Sketcher.Constraint("Coincident", 88, 3, -1, 1),
    Sketcher.Constraint("Equal", 1, 5),
    Sketcher.Constraint("Equal", 5, 7),
    Sketcher.Constraint("Equal", 9, 11),
    Sketcher.Constraint("Equal", 13, 15),
    Sketcher.Constraint("Equal", 11, 17),
    Sketcher.Constraint("Equal", 17, 19),
    Sketcher.Constraint("Equal", 7, 21),
    Sketcher.Constraint("Equal", 21, 23),
    Sketcher.Constraint("Equal", 3, 25),
    Sketcher.Constraint("Equal", 23, 27),
    Sketcher.Constraint("Equal", 27, 29),
    Sketcher.Constraint("Equal", 19, 31),
    Sketcher.Constraint("Equal", 31, 33),
    Sketcher.Constraint("Equal", 35, 37),
    Sketcher.Constraint("Equal", 33, 39),
    Sketcher.Constraint("Equal", 39, 41),
    Sketcher.Constraint("Equal", 29, 43),
    Sketcher.Constraint("Equal", 43, 45),
    Sketcher.Constraint("Equal", 25, 47),
    Sketcher.Constraint("Equal", 45, 49),
    Sketcher.Constraint("Equal", 49, 51),
    Sketcher.Constraint("Equal", 41, 53),
    Sketcher.Constraint("Equal", 53, 55),
    Sketcher.Constraint("Equal", 15, 57),
    Sketcher.Constraint("Equal", 57, 59),
    Sketcher.Constraint("Equal", 55, 61),
    Sketcher.Constraint("Equal", 61, 63),
    Sketcher.Constraint("Equal", 51, 65),
    Sketcher.Constraint("Equal", 65, 67),
    Sketcher.Constraint("Equal", 47, 69),
    Sketcher.Constraint("Equal", 67, 71),
    Sketcher.Constraint("Equal", 71, 73),
    Sketcher.Constraint("Equal", 63, 75),
    Sketcher.Constraint("Equal", 75, 77),
    Sketcher.Constraint("Equal", 37, 79),
    Sketcher.Constraint("Equal", 79, 81),
    Sketcher.Constraint("Equal", 77, 83),
    Sketcher.Constraint("Equal", 83, 85),
    Sketcher.Constraint("Equal", 73, 87),
    Sketcher.Constraint("Symmetric", 1, 3, 45, 3, -1, 1),
    Sketcher.Constraint("Symmetric", 3, 3, 47, 3, -1, 1),
    Sketcher.Constraint("Symmetric", 5, 3, 49, 3, -1, 1),
    Sketcher.Constraint("Symmetric", 9, 3, 53, 3, -1, 1),
    Sketcher.Constraint("Symmetric", 13, 3, 57, 3, -1, 1),
    Sketcher.Constraint("Symmetric", 17, 3, 61, 3, -1, 1),
    Sketcher.Constraint("Symmetric", 21, 3, 65, 3, -1, 1),
    Sketcher.Constraint("Symmetric", 25, 3, 69, 3, -1, 1),
    Sketcher.Constraint("Symmetric", 27, 3, 71, 3, -1, 1),
    Sketcher.Constraint("Symmetric", 31, 3, 75, 3, -1, 1),
    Sketcher.Constraint("Symmetric", 35, 3, 79, 3, -1, 1),
    Sketcher.Constraint("Symmetric", 39, 3, 83, 3, -1, 1),
    Sketcher.Constraint("Symmetric", 33, 3, 39, 3, -2),
    Sketcher.Constraint("Symmetric", 29, 3, 43, 3, -2),
    Sketcher.Constraint("Symmetric", 25, 3, 47, 3, -2),
    Sketcher.Constraint("Symmetric", 23, 3, 49, 3, -2),
    Sketcher.Constraint("Symmetric", 19, 3, 53, 3, -2),
    Sketcher.Constraint("Symmetric", 16, 2, 55, 1, -2),
    Sketcher.Constraint("Symmetric", 12, 2, 59, 1, -2),
    Sketcher.Constraint("Symmetric", 78, 2, 81, 1, -2),
    Sketcher.Constraint("Parallel", 16, 34),
    Sketcher.Constraint("Parallel", 12, 38),
    Sketcher.Constraint("Horizontal", 27, 3, 45, 3),
    Sketcher.Constraint("Horizontal", 75, 3, 85, 3),
    Sketcher.Constraint("Horizontal", 3, 2, 68, 2),
    Sketcher.Constraint("Equal", 66, 0),
    Sketcher.Constraint("Diameter", 88, Q("0.262 in")),
    Sketcher.Constraint("Radius", 3, Q("0.125 in")),
    Sketcher.Constraint("Radius", 13, Q("0.187 in")),
    Sketcher.Constraint("Radius", 9, Q("0.0355 in")),
    Sketcher.Constraint("DistanceX", 0, 2, -1, 1, Q("0.16 in")),
    Sketcher.Constraint("DistanceY", -1, 1, 1, 2, Q("0.75 in")),
    Sketcher.Constraint("DistanceX", 3, 2, -1, 1, Q("0.75 in")),
    Sketcher.Constraint("DistanceY", -1, 1, 5, 2, Q("0.16 in")),
    Sketcher.Constraint("DistanceX", 7, 2, -1, 1, Q("0.59 in")),
    Sketcher.Constraint("DistanceX", 13, 3, -1, 1, Q("0.453 in")),
    Sketcher.Constraint("DistanceX", 31, 1, -1, 1, Q("0.405 in")),
    Sketcher.Constraint("DistanceY", 35, 1, -1, 1, Q("0.266 in")),
    Sketcher.Constraint("Radius", 1, 1.553618),
    Sketcher.Constraint("Radius", 35, 4.737573),
    Sketcher.Constraint("DistanceX", 2, 2, 2, 1, 10.229869),
    Sketcher.Constraint("DistanceY", 4, 2, 4, 1, 10.229892),
    Sketcher.Constraint("DistanceX", 33, 1, -1, 1, 10.022899),
    Sketcher.Constraint("Distance", 12, 6.690459),
    Sketcher.Constraint("DistanceX", 36, 1, 36, 2, 3.804368),
    Sketcher.Constraint("DistanceY", 8, 1, 8, 2, 3.767725),
])
pad1 = body.newObject("PartDesign::Pad", "Pad")
pad1.Profile = sketch1
pad1.Length = Q("9 in")
pad1.Midplane = True

doc.recompute()
